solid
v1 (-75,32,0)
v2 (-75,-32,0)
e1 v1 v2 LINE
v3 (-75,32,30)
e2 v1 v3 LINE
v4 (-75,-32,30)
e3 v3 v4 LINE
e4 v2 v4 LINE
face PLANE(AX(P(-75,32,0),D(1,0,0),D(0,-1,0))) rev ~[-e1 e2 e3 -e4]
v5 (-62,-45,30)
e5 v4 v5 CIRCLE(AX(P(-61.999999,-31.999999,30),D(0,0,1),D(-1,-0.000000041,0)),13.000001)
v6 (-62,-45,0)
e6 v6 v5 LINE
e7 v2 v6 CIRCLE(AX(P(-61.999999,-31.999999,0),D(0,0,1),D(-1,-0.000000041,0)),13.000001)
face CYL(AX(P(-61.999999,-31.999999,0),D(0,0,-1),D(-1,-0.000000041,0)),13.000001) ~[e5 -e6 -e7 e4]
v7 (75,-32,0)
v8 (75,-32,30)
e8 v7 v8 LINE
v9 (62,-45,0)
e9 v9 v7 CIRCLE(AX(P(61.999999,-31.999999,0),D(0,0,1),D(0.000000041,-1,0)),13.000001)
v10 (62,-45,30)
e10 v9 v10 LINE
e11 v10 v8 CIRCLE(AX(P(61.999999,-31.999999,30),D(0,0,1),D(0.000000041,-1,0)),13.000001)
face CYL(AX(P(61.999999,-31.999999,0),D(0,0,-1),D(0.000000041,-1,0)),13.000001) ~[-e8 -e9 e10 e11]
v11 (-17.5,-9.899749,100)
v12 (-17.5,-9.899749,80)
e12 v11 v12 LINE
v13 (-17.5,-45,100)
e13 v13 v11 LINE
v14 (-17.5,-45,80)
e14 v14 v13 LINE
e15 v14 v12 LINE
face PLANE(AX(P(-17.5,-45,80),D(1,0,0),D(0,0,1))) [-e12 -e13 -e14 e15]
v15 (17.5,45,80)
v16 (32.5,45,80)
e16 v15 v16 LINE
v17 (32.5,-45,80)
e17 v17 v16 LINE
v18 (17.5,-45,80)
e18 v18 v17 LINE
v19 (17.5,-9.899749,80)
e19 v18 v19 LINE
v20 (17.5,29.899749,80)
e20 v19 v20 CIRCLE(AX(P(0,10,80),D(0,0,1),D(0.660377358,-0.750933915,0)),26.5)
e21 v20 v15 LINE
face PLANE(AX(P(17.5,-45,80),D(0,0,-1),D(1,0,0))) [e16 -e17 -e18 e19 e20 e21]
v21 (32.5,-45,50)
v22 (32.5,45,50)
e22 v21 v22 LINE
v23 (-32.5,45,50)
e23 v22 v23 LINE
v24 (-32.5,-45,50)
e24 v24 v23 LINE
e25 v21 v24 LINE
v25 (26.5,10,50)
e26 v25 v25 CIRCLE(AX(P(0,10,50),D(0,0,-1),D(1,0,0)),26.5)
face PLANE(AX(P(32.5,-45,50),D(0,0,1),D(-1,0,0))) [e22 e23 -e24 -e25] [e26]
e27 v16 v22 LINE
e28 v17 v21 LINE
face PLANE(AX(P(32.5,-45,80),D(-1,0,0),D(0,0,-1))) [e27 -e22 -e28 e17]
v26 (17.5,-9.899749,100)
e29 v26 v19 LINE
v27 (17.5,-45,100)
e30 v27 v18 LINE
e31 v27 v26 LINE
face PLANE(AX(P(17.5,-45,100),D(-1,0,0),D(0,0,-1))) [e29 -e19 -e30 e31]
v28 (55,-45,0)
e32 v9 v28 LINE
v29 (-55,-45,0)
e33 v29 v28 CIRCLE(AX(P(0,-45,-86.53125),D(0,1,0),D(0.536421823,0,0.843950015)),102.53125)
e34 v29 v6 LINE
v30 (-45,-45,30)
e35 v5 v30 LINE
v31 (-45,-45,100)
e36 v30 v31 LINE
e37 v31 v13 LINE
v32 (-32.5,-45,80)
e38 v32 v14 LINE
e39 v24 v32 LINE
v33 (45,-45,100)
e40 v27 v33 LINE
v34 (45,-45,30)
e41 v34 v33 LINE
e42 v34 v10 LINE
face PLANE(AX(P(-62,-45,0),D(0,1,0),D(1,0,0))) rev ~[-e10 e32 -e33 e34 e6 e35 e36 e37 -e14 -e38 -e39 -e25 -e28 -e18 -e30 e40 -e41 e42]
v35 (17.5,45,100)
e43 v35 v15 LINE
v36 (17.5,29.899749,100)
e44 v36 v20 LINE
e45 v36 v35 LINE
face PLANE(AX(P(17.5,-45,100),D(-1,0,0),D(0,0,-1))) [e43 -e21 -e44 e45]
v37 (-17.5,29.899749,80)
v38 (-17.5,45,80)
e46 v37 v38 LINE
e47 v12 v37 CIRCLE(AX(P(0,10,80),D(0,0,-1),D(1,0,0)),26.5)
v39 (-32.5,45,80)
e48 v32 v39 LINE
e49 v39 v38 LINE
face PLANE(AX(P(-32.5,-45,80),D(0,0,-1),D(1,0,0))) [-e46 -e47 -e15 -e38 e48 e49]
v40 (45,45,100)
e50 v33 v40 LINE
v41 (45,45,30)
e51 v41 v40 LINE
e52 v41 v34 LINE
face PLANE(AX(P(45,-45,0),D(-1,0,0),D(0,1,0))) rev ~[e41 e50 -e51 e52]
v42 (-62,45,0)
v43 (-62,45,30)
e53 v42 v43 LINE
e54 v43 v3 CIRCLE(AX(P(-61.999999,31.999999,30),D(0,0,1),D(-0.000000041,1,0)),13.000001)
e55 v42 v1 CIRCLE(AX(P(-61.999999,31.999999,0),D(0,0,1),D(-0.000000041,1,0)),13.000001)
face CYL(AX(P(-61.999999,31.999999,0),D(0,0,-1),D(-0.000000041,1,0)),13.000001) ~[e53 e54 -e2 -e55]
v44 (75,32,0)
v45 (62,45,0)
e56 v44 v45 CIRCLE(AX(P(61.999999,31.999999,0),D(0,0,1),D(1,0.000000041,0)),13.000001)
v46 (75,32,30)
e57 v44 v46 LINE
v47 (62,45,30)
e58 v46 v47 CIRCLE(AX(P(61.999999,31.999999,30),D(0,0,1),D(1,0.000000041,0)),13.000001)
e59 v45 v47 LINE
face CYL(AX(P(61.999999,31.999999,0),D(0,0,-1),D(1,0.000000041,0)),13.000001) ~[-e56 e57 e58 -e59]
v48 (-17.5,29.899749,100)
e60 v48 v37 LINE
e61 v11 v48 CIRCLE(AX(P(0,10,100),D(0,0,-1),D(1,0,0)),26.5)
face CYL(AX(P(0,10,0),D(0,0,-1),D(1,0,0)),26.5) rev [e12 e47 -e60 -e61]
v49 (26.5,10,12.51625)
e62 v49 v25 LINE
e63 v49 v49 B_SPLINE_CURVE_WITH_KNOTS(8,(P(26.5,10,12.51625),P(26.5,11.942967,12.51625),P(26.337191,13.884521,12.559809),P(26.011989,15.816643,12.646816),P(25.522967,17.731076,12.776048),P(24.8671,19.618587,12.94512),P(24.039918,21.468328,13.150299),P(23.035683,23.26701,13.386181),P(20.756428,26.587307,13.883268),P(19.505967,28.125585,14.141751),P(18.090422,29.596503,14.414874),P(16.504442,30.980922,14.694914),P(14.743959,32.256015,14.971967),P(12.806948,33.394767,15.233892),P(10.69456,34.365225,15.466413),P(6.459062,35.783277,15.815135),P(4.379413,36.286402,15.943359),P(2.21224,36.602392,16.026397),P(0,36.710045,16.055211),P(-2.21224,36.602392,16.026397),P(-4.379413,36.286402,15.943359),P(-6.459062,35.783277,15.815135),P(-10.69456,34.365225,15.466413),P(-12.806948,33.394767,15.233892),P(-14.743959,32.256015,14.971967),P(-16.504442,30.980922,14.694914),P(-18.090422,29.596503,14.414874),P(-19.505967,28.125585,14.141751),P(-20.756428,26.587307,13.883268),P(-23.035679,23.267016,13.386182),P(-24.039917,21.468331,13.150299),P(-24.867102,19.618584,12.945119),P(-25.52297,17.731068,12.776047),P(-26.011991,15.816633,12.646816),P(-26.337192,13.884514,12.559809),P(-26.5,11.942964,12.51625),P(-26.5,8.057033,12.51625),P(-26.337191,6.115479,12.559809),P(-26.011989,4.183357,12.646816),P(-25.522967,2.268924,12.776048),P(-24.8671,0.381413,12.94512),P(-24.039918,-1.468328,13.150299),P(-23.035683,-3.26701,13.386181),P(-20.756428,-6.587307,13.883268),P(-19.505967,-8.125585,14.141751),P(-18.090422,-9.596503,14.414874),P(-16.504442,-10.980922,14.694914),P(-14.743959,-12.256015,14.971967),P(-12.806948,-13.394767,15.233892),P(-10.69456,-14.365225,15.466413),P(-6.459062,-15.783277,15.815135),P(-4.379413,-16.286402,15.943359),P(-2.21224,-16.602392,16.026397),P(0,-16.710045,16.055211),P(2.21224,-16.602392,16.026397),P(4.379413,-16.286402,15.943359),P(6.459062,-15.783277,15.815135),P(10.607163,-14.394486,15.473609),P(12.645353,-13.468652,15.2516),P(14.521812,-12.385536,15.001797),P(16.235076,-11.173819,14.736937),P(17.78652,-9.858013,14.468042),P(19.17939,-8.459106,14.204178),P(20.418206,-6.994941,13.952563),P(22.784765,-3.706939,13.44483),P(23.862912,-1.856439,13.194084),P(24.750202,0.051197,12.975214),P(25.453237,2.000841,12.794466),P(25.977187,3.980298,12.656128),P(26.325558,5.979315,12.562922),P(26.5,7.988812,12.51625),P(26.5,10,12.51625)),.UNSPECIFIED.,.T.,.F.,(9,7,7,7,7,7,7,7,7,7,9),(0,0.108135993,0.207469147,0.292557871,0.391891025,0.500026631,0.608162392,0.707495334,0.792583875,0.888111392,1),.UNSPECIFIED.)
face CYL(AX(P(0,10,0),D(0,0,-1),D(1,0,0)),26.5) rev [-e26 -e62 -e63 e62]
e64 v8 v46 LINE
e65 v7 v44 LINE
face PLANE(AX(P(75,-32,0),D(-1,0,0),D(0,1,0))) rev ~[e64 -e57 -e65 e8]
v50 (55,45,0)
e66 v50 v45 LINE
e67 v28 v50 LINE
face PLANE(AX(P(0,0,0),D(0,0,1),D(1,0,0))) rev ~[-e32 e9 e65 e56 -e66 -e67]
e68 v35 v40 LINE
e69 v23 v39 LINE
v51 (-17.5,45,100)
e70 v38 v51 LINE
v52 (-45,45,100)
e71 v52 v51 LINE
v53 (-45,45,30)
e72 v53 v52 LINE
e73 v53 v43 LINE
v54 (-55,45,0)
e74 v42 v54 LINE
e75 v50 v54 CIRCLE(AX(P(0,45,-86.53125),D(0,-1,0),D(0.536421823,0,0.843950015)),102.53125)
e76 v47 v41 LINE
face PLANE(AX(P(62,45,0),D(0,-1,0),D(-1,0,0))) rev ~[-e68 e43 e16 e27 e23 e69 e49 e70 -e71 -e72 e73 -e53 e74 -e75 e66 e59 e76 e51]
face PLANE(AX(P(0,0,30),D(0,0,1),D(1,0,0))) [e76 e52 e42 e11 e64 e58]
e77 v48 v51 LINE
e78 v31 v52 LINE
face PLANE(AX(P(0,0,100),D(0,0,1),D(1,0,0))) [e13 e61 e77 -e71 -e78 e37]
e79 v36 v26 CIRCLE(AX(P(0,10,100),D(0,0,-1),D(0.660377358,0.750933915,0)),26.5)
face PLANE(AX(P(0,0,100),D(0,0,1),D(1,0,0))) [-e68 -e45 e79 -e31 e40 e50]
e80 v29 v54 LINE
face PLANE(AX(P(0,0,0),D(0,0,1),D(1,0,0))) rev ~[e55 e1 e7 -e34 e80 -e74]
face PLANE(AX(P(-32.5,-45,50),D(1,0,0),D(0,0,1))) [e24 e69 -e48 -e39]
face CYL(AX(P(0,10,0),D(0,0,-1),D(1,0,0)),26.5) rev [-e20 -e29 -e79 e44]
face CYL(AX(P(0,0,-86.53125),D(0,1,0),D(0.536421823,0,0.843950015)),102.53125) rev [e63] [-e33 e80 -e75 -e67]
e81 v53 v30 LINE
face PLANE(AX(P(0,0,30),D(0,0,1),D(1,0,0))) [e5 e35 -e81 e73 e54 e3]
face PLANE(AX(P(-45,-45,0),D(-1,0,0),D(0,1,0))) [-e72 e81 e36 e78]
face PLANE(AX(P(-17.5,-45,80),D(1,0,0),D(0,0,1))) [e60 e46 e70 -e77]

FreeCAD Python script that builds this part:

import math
import FreeCAD as App
import Part
import Sketcher

V = App.Vector

doc = App.newDocument("Part")
body = doc.addObject("PartDesign::Body", "Body")

sketch1 = doc.addObject("Sketcher::SketchObject", "Sketch")
body.addObject(sketch1)
sketch1.AttachmentSupport = (doc.XY_Plane, [""])
sketch1.MapMode = "FlatFace"
sketch1.addGeometry([
    Part.LineSegment(V(-75, 32, 0), V(-75, -32, 0)),
    Part.ArcOfCircle(Part.Circle(V(-61.999999, -31.999999, 0), V(0, 0, 1), 13.000001), math.radians(-179.999998), math.radians(-90.000002)),
    Part.LineSegment(V(-62, -45, 0), V(62, -45, 0)),
    Part.ArcOfCircle(Part.Circle(V(61.999999, -31.999999, 0), V(0, 0, 1), 13.000001), math.radians(-89.999998), math.radians(-0.000002)),
    Part.LineSegment(V(75, -32, 0), V(75, 32, 0)),
    Part.ArcOfCircle(Part.Circle(V(61.999999, 31.999999, 0), V(0, 0, 1), 13.000001), math.radians(0.000002), math.radians(89.999998)),
    Part.LineSegment(V(62, 45, 0), V(-62, 45, 0)),
    Part.ArcOfCircle(Part.Circle(V(-61.999999, 31.999999, 0), V(0, 0, 1), 13.000001), math.radians(90.000002), math.radians(179.999998)),
], False)
sketch1.addConstraint([
    Sketcher.Constraint("Tangent", 0, 2, 1, 1),
    Sketcher.Constraint("Tangent", 1, 2, 2, 1),
    Sketcher.Constraint("Tangent", 2, 2, 3, 1),
    Sketcher.Constraint("Tangent", 3, 2, 4, 1),
    Sketcher.Constraint("Tangent", 4, 2, 5, 1),
    Sketcher.Constraint("Tangent", 5, 2, 6, 1),
    Sketcher.Constraint("Tangent", 6, 2, 7, 1),
    Sketcher.Constraint("Tangent", 7, 2, 0, 1),
    Sketcher.Constraint("Vertical", 0),
    Sketcher.Constraint("Horizontal", 2),
    Sketcher.Constraint("Vertical", 4),
    Sketcher.Constraint("Horizontal", 6),
    Sketcher.Constraint("Equal", 1, 3),
    Sketcher.Constraint("Equal", 3, 5),
    Sketcher.Constraint("Equal", 5, 7),
    Sketcher.Constraint("Symmetric", 1, 3, 5, 3, -1, 1),
    Sketcher.Constraint("Radius", 1, 13.000001),
    Sketcher.Constraint("DistanceX", 2, 1, 2, 2, 124.0),
    Sketcher.Constraint("DistanceY", 0, 2, 0, 1, 64.0),
])
pad1 = doc.addObject("PartDesign::Pad", "Pad")
body.addObject(pad1)
pad1.Profile = sketch1
pad1.Length = 30

sketch2 = doc.addObject("Sketcher::SketchObject", "Sketch001")
body.addObject(sketch2)
sketch2.AttachmentSupport = (doc.XY_Plane, [""])
sketch2.MapMode = "FlatFace"
sketch2.addGeometry([
    Part.LineSegment(V(-45, 45, 0), V(-45, -45, 0)),
    Part.LineSegment(V(-45, -45, 0), V(45, -45, 0)),
    Part.LineSegment(V(45, -45, 0), V(45, 45, 0)),
    Part.LineSegment(V(45, 45, 0), V(-45, 45, 0)),
], False)
sketch2.addConstraint([
    Sketcher.Constraint("Coincident", 0, 2, 1, 1),
    Sketcher.Constraint("Coincident", 1, 2, 2, 1),
    Sketcher.Constraint("Coincident", 2, 2, 3, 1),
    Sketcher.Constraint("Coincident", 3, 2, 0, 1),
    Sketcher.Constraint("Vertical", 0),
    Sketcher.Constraint("Horizontal", 1),
    Sketcher.Constraint("Vertical", 2),
    Sketcher.Constraint("Horizontal", 3),
    Sketcher.Constraint("Symmetric", 0, 2, 2, 2, -1, 1),
    Sketcher.Constraint("Equal", 3, 0),
    Sketcher.Constraint("DistanceX", 1, 1, 1, 2, 90.0),
])
pad2 = doc.addObject("PartDesign::Pad", "Pad001")
body.addObject(pad2)
pad2.Profile = sketch2
pad2.Length = 100

sketch3 = doc.addObject("Sketcher::SketchObject", "Sketch002")
body.addObject(sketch3)
sketch3.AttachmentSupport = (doc.XZ_Plane, [""])
sketch3.MapMode = "FlatFace"
sketch3.addGeometry([
    Part.ArcOfCircle(Part.Circle(V(0, -86.53125, 0), V(0, 0, 1), 102.53125), math.radians(57.559613), math.radians(122.440387)),
    Part.LineSegment(V(-55, 0, 0), V(55, 0, 0)),
], False)
sketch3.addConstraint([
    Sketcher.Constraint("Coincident", 0, 1, 1, 2),
    Sketcher.Constraint("Coincident", 1, 1, 0, 2),
    Sketcher.Constraint("Horizontal", 1),
    Sketcher.Constraint("Symmetric", 0, 1, 1, 1, -1, 1),
    Sketcher.Constraint("DistanceX", 1, 1, 1, 2, 110.0),
    Sketcher.Constraint("Radius", 0, 102.53125),
])
pocket1 = doc.addObject("PartDesign::Pocket", "Pocket")
body.addObject(pocket1)
pocket1.Profile = sketch3
pocket1.Type = "ThroughAll"
pocket1.Midplane = True

sketch4 = doc.addObject("Sketcher::SketchObject", "Sketch003")
body.addObject(sketch4)
sketch4.AttachmentSupport = (doc.XZ_Plane, [""])
sketch4.MapMode = "FlatFace"
sketch4.AttachmentOffset = App.Placement(V(0, 0, 45), App.Rotation())
sketch4.addGeometry([
    Part.LineSegment(V(17.5, 100, 0), V(-17.5, 100, 0)),
    Part.LineSegment(V(-17.5, 100, 0), V(-17.5, 80, 0)),
    Part.LineSegment(V(-17.5, 80, 0), V(-32.5, 80, 0)),
    Part.LineSegment(V(-32.5, 80, 0), V(-32.5, 50, 0)),
    Part.LineSegment(V(-32.5, 50, 0), V(32.5, 50, 0)),
    Part.LineSegment(V(32.5, 50, 0), V(32.5, 80, 0)),
    Part.LineSegment(V(32.5, 80, 0), V(17.5, 80, 0)),
    Part.LineSegment(V(17.5, 80, 0), V(17.5, 100, 0)),
], False)
sketch4.addConstraint([
    Sketcher.Constraint("Coincident", 0, 2, 1, 1),
    Sketcher.Constraint("Coincident", 1, 2, 2, 1),
    Sketcher.Constraint("Coincident", 2, 2, 3, 1),
    Sketcher.Constraint("Coincident", 3, 2, 4, 1),
    Sketcher.Constraint("Coincident", 4, 2, 5, 1),
    Sketcher.Constraint("Coincident", 5, 2, 6, 1),
    Sketcher.Constraint("Coincident", 6, 2, 7, 1),
    Sketcher.Constraint("Coincident", 7, 2, 0, 1),
    Sketcher.Constraint("Horizontal", 0),
    Sketcher.Constraint("Vertical", 1),
    Sketcher.Constraint("Horizontal", 2),
    Sketcher.Constraint("Vertical", 3),
    Sketcher.Constraint("Horizontal", 4),
    Sketcher.Constraint("Vertical", 5),
    Sketcher.Constraint("Horizontal", 6),
    Sketcher.Constraint("Vertical", 7),
    Sketcher.Constraint("Symmetric", 2, 2, 5, 2, -2),
    Sketcher.Constraint("Equal", 2, 6),
    Sketcher.Constraint("DistanceX", 0, 2, 0, 1, 35.0),
    Sketcher.Constraint("DistanceX", 2, 2, 2, 1, 15.0),
    Sketcher.Constraint("DistanceY", 1, 2, 1, 1, 20.0),
    Sketcher.Constraint("DistanceY", 3, 2, 3, 1, 30.0),
    Sketcher.Constraint("DistanceY", -1, 1, 0, 2, 100.0),
])
pocket2 = doc.addObject("PartDesign::Pocket", "Pocket001")
body.addObject(pocket2)
pocket2.Profile = sketch4
pocket2.Type = "ThroughAll"

sketch5 = doc.addObject("Sketcher::SketchObject", "Sketch004")
body.addObject(sketch5)
sketch5.AttachmentSupport = (doc.XY_Plane, [""])
sketch5.MapMode = "FlatFace"
sketch5.addGeometry(Part.Circle(V(0, 10, 0), V(0, 0, 1), 26.5), False)
sketch5.addConstraint([
    Sketcher.Constraint("PointOnObject", 0, 3, -2),
    Sketcher.Constraint("Diameter", 0, 53.0),
    Sketcher.Constraint("DistanceY", -1, 1, 0, 3, 10.0),
])
pocket3 = doc.addObject("PartDesign::Pocket", "Pocket002")
body.addObject(pocket3)
pocket3.Profile = sketch5
pocket3.Type = "ThroughAll"
pocket3.Reversed = True

doc.recompute()
